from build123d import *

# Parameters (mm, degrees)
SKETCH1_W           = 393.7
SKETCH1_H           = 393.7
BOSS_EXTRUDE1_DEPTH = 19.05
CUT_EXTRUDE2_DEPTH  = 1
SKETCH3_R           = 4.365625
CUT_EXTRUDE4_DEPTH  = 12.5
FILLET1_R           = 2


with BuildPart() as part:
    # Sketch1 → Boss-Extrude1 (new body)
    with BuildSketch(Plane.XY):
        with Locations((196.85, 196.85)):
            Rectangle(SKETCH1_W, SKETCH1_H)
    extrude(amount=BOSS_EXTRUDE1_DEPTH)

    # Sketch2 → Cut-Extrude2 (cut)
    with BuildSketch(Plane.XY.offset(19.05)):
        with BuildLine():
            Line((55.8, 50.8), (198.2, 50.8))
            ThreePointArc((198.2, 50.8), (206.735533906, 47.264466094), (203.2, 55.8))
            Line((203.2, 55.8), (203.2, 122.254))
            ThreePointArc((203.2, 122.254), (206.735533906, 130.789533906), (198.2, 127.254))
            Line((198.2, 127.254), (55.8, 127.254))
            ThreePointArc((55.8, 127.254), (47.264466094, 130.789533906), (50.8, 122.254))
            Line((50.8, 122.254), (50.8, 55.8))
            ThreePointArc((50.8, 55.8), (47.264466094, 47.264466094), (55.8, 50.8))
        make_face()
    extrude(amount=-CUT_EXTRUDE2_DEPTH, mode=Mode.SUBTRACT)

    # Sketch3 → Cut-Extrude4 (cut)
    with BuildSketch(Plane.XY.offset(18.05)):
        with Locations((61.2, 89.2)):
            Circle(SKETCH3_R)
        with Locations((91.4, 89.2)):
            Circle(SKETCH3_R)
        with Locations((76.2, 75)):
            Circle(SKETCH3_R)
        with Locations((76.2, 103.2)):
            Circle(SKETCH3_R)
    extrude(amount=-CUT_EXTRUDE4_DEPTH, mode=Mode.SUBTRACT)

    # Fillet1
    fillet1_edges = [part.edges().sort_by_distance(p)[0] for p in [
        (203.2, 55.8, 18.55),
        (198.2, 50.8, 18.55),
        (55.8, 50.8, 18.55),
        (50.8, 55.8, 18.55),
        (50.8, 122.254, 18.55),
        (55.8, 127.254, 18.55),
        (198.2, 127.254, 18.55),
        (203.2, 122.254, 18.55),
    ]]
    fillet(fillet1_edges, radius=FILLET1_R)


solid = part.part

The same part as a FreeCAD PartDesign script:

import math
import FreeCAD as App
import Part
import Sketcher

V = App.Vector
Q = App.Units.Quantity


def edges_at(feature, points):
    """Names of the edges that pass closest to the given points."""
    edges = feature.Shape.Edges
    near = lambda p: min(range(len(edges)), key=lambda i: edges[i].distToShape(Part.Vertex(*p))[0])
    return sorted({f"Edge{near(p) + 1}" for p in points})


def add_polygon(sketch, points):
    """Adds a closed chain of lines whose ends are joined by coincident constraints."""
    first, n = sketch.GeometryCount, len(points)
    for a, b in zip(points, points[1:] + points[:1]):
        sketch.addGeometry(Part.LineSegment(App.Vector(*a, 0), App.Vector(*b, 0)), False)
    for i in range(n):
        sketch.addConstraint(Sketcher.Constraint("Coincident", first + i, 2, first + (i + 1) % n, 1))

doc = App.newDocument("Part")
body = doc.addObject("PartDesign::Body", "Body")

sketch1 = body.newObject("Sketcher::SketchObject", "Sketch")
sketch1.AttachmentSupport = (doc.getObject("XY_Plane"), [""])
sketch1.MapMode = "FlatFace"
add_polygon(sketch1, [(0, 393.7), (0, 0), (393.7, 0), (393.7, 393.7)])
sketch1.addConstraint(Sketcher.Constraint("Vertical", 0))
sketch1.addConstraint(Sketcher.Constraint("Horizontal", 1))
sketch1.addConstraint(Sketcher.Constraint("Vertical", 2))
sketch1.addConstraint(Sketcher.Constraint("Horizontal", 3))
sketch1.addConstraint(Sketcher.Constraint("Coincident", 0, 2, -1, 1))
sketch1.addConstraint(Sketcher.Constraint("Equal", 3, 0))
sketch1.addConstraint(Sketcher.Constraint("DistanceX", 1, 1, 1, 2, Q("393.7 mm")))
pad1 = body.newObject("PartDesign::Pad", "Pad")
pad1.Profile = sketch1
pad1.Length = 19.05

sketch2 = body.newObject("Sketcher::SketchObject", "Sketch001")
sketch2.AttachmentSupport = (doc.getObject("XY_Plane"), [""])
sketch2.MapMode = "FlatFace"
sketch2.AttachmentOffset = App.Placement(V(0, 0, 19.05), App.Rotation())
sketch2.addGeometry(Part.LineSegment(V(55.8, 50.8, 0), V(198.2, 50.8, 0)), False)
sketch2.addGeometry(Part.ArcOfCircle(Part.Circle(V(203.2, 50.8, 0), V(0, 0, 1), 5), math.radians(180), math.radians(450)), False)
sketch2.addGeometry(Part.LineSegment(V(203.2, 55.8, 0), V(203.2, 122.254, 0)), False)
sketch2.addGeometry(Part.ArcOfCircle(Part.Circle(V(203.2, 127.254, 0), V(0, 0, 1), 5), math.radians(-90), math.radians(180)), False)
sketch2.addGeometry(Part.LineSegment(V(198.2, 127.254, 0), V(55.8, 127.254, 0)), False)
sketch2.addGeometry(Part.ArcOfCircle(Part.Circle(V(50.8, 127.254, 0), V(0, 0, 1), 5), math.radians(0), math.radians(270)), False)
sketch2.addGeometry(Part.LineSegment(V(50.8, 122.254, 0), V(50.8, 55.8, 0)), False)
sketch2.addGeometry(Part.ArcOfCircle(Part.Circle(V(50.8, 50.8, 0), V(0, 0, 1), 5), math.radians(90), math.radians(360)), False)
sketch2.addConstraint(Sketcher.Constraint("Coincident", 0, 2, 1, 1))
sketch2.addConstraint(Sketcher.Constraint("Coincident", 1, 2, 2, 1))
sketch2.addConstraint(Sketcher.Constraint("Coincident", 2, 2, 3, 1))
sketch2.addConstraint(Sketcher.Constraint("Coincident", 3, 2, 4, 1))
sketch2.addConstraint(Sketcher.Constraint("Coincident", 4, 2, 5, 1))
sketch2.addConstraint(Sketcher.Constraint("Coincident", 5, 2, 6, 1))
sketch2.addConstraint(Sketcher.Constraint("Coincident", 6, 2, 7, 1))
sketch2.addConstraint(Sketcher.Constraint("Coincident", 7, 2, 0, 1))
sketch2.addConstraint(Sketcher.Constraint("Horizontal", 0))
sketch2.addConstraint(Sketcher.Constraint("Vertical", 2))
sketch2.addConstraint(Sketcher.Constraint("Horizontal", 4))
sketch2.addConstraint(Sketcher.Constraint("Vertical", 6))
sketch2.addConstraint(Sketcher.Constraint("Equal", 1, 3))
sketch2.addConstraint(Sketcher.Constraint("Equal", 3, 5))
sketch2.addConstraint(Sketcher.Constraint("Equal", 5, 7))
sketch2.addConstraint(Sketcher.Constraint("Horizontal", 3, 3, 5, 3))
sketch2.addConstraint(Sketcher.Constraint("Horizontal", 1, 3, 7, 3))
sketch2.addConstraint(Sketcher.Constraint("Horizontal", 7, 3, 0, 2))
sketch2.addConstraint(Sketcher.Constraint("Horizontal", 5, 3, 3, 2))
sketch2.addConstraint(Sketcher.Constraint("Vertical", 1, 3, 3, 3))
sketch2.addConstraint(Sketcher.Constraint("Vertical", 5, 3, 7, 3))
sketch2.addConstraint(Sketcher.Constraint("Vertical", 3, 3, 1, 2))
sketch2.addConstraint(Sketcher.Constraint("Vertical", 7, 3, 5, 2))
sketch2.addConstraint(Sketcher.Constraint("Radius", 1, Q("5 mm")))
sketch2.addConstraint(Sketcher.Constraint("DistanceX", 0, 1, 0, 2, Q("142.4 mm")))
sketch2.addConstraint(Sketcher.Constraint("DistanceX", -1, 1, 1, 3, Q("203.2 mm")))
sketch2.addConstraint(Sketcher.Constraint("DistanceY", -1, 1, 1, 3, Q("50.8 mm")))
sketch2.addConstraint(Sketcher.Constraint("DistanceY", 2, 1, 2, 2, Q("66.454 mm")))
pocket1 = body.newObject("PartDesign::Pocket", "Pocket")
pocket1.Profile = sketch2
pocket1.Length = 1

sketch3 = body.newObject("Sketcher::SketchObject", "Sketch002")
sketch3.AttachmentSupport = (doc.getObject("XY_Plane"), [""])
sketch3.MapMode = "FlatFace"
sketch3.AttachmentOffset = App.Placement(V(0, 0, 18.05), App.Rotation())
sketch3.addGeometry(Part.Circle(V(61.2, 89.2, 0), V(0, 0, 1), 4.365625), False)
sketch3.addGeometry(Part.Circle(V(91.4, 89.2, 0), V(0, 0, 1), 4.365625), False)
sketch3.addGeometry(Part.Circle(V(76.2, 75, 0), V(0, 0, 1), 4.365625), False)
sketch3.addGeometry(Part.Circle(V(76.2, 103.2, 0), V(0, 0, 1), 4.365625), False)
sketch3.addConstraint(Sketcher.Constraint("Equal", 0, 1))
sketch3.addConstraint(Sketcher.Constraint("Equal", 1, 2))
sketch3.addConstraint(Sketcher.Constraint("Equal", 2, 3))
sketch3.addConstraint(Sketcher.Constraint("Horizontal", 0, 3, 1, 3))
sketch3.addConstraint(Sketcher.Constraint("Vertical", 2, 3, 3, 3))
sketch3.addConstraint(Sketcher.Constraint("DistanceY", -1, 1, 2, 3, Q("75 mm")))
sketch3.addConstraint(Sketcher.Constraint("DistanceX", 0, 3, 2, 3, Q("15 mm")))
sketch3.addConstraint(Sketcher.Constraint("DistanceY", 0, 3, 3, 3, Q("14 mm")))
sketch3.addConstraint(Sketcher.Constraint("DistanceX", -1, 1, 0, 3, Q("61.2 mm")))
sketch3.addConstraint(Sketcher.Constraint("DistanceY", -1, 1, 0, 3, Q("89.2 mm")))
sketch3.addConstraint(Sketcher.Constraint("DistanceX", -1, 1, 1, 3, Q("91.4 mm")))
sketch3.addConstraint(Sketcher.Constraint("Diameter", 0, Q("8.73125 mm")))
pocket2 = body.newObject("PartDesign::Pocket", "Pocket001")
pocket2.Profile = sketch3
pocket2.Length = 12.5
doc.recompute()

fillet = body.newObject("PartDesign::Fillet", "Fillet")
fillet.Base = (pocket2, edges_at(pocket2, [
    (203.2, 55.8, 18.55),
    (198.2, 50.8, 18.55),
    (55.8, 50.8, 18.55),
    (50.8, 55.8, 18.55),
    (50.8, 122.254, 18.55),
    (55.8, 127.254, 18.55),
    (198.2, 127.254, 18.55),
    (203.2, 122.254, 18.55),
]))
fillet.Radius = 2

doc.recompute()
